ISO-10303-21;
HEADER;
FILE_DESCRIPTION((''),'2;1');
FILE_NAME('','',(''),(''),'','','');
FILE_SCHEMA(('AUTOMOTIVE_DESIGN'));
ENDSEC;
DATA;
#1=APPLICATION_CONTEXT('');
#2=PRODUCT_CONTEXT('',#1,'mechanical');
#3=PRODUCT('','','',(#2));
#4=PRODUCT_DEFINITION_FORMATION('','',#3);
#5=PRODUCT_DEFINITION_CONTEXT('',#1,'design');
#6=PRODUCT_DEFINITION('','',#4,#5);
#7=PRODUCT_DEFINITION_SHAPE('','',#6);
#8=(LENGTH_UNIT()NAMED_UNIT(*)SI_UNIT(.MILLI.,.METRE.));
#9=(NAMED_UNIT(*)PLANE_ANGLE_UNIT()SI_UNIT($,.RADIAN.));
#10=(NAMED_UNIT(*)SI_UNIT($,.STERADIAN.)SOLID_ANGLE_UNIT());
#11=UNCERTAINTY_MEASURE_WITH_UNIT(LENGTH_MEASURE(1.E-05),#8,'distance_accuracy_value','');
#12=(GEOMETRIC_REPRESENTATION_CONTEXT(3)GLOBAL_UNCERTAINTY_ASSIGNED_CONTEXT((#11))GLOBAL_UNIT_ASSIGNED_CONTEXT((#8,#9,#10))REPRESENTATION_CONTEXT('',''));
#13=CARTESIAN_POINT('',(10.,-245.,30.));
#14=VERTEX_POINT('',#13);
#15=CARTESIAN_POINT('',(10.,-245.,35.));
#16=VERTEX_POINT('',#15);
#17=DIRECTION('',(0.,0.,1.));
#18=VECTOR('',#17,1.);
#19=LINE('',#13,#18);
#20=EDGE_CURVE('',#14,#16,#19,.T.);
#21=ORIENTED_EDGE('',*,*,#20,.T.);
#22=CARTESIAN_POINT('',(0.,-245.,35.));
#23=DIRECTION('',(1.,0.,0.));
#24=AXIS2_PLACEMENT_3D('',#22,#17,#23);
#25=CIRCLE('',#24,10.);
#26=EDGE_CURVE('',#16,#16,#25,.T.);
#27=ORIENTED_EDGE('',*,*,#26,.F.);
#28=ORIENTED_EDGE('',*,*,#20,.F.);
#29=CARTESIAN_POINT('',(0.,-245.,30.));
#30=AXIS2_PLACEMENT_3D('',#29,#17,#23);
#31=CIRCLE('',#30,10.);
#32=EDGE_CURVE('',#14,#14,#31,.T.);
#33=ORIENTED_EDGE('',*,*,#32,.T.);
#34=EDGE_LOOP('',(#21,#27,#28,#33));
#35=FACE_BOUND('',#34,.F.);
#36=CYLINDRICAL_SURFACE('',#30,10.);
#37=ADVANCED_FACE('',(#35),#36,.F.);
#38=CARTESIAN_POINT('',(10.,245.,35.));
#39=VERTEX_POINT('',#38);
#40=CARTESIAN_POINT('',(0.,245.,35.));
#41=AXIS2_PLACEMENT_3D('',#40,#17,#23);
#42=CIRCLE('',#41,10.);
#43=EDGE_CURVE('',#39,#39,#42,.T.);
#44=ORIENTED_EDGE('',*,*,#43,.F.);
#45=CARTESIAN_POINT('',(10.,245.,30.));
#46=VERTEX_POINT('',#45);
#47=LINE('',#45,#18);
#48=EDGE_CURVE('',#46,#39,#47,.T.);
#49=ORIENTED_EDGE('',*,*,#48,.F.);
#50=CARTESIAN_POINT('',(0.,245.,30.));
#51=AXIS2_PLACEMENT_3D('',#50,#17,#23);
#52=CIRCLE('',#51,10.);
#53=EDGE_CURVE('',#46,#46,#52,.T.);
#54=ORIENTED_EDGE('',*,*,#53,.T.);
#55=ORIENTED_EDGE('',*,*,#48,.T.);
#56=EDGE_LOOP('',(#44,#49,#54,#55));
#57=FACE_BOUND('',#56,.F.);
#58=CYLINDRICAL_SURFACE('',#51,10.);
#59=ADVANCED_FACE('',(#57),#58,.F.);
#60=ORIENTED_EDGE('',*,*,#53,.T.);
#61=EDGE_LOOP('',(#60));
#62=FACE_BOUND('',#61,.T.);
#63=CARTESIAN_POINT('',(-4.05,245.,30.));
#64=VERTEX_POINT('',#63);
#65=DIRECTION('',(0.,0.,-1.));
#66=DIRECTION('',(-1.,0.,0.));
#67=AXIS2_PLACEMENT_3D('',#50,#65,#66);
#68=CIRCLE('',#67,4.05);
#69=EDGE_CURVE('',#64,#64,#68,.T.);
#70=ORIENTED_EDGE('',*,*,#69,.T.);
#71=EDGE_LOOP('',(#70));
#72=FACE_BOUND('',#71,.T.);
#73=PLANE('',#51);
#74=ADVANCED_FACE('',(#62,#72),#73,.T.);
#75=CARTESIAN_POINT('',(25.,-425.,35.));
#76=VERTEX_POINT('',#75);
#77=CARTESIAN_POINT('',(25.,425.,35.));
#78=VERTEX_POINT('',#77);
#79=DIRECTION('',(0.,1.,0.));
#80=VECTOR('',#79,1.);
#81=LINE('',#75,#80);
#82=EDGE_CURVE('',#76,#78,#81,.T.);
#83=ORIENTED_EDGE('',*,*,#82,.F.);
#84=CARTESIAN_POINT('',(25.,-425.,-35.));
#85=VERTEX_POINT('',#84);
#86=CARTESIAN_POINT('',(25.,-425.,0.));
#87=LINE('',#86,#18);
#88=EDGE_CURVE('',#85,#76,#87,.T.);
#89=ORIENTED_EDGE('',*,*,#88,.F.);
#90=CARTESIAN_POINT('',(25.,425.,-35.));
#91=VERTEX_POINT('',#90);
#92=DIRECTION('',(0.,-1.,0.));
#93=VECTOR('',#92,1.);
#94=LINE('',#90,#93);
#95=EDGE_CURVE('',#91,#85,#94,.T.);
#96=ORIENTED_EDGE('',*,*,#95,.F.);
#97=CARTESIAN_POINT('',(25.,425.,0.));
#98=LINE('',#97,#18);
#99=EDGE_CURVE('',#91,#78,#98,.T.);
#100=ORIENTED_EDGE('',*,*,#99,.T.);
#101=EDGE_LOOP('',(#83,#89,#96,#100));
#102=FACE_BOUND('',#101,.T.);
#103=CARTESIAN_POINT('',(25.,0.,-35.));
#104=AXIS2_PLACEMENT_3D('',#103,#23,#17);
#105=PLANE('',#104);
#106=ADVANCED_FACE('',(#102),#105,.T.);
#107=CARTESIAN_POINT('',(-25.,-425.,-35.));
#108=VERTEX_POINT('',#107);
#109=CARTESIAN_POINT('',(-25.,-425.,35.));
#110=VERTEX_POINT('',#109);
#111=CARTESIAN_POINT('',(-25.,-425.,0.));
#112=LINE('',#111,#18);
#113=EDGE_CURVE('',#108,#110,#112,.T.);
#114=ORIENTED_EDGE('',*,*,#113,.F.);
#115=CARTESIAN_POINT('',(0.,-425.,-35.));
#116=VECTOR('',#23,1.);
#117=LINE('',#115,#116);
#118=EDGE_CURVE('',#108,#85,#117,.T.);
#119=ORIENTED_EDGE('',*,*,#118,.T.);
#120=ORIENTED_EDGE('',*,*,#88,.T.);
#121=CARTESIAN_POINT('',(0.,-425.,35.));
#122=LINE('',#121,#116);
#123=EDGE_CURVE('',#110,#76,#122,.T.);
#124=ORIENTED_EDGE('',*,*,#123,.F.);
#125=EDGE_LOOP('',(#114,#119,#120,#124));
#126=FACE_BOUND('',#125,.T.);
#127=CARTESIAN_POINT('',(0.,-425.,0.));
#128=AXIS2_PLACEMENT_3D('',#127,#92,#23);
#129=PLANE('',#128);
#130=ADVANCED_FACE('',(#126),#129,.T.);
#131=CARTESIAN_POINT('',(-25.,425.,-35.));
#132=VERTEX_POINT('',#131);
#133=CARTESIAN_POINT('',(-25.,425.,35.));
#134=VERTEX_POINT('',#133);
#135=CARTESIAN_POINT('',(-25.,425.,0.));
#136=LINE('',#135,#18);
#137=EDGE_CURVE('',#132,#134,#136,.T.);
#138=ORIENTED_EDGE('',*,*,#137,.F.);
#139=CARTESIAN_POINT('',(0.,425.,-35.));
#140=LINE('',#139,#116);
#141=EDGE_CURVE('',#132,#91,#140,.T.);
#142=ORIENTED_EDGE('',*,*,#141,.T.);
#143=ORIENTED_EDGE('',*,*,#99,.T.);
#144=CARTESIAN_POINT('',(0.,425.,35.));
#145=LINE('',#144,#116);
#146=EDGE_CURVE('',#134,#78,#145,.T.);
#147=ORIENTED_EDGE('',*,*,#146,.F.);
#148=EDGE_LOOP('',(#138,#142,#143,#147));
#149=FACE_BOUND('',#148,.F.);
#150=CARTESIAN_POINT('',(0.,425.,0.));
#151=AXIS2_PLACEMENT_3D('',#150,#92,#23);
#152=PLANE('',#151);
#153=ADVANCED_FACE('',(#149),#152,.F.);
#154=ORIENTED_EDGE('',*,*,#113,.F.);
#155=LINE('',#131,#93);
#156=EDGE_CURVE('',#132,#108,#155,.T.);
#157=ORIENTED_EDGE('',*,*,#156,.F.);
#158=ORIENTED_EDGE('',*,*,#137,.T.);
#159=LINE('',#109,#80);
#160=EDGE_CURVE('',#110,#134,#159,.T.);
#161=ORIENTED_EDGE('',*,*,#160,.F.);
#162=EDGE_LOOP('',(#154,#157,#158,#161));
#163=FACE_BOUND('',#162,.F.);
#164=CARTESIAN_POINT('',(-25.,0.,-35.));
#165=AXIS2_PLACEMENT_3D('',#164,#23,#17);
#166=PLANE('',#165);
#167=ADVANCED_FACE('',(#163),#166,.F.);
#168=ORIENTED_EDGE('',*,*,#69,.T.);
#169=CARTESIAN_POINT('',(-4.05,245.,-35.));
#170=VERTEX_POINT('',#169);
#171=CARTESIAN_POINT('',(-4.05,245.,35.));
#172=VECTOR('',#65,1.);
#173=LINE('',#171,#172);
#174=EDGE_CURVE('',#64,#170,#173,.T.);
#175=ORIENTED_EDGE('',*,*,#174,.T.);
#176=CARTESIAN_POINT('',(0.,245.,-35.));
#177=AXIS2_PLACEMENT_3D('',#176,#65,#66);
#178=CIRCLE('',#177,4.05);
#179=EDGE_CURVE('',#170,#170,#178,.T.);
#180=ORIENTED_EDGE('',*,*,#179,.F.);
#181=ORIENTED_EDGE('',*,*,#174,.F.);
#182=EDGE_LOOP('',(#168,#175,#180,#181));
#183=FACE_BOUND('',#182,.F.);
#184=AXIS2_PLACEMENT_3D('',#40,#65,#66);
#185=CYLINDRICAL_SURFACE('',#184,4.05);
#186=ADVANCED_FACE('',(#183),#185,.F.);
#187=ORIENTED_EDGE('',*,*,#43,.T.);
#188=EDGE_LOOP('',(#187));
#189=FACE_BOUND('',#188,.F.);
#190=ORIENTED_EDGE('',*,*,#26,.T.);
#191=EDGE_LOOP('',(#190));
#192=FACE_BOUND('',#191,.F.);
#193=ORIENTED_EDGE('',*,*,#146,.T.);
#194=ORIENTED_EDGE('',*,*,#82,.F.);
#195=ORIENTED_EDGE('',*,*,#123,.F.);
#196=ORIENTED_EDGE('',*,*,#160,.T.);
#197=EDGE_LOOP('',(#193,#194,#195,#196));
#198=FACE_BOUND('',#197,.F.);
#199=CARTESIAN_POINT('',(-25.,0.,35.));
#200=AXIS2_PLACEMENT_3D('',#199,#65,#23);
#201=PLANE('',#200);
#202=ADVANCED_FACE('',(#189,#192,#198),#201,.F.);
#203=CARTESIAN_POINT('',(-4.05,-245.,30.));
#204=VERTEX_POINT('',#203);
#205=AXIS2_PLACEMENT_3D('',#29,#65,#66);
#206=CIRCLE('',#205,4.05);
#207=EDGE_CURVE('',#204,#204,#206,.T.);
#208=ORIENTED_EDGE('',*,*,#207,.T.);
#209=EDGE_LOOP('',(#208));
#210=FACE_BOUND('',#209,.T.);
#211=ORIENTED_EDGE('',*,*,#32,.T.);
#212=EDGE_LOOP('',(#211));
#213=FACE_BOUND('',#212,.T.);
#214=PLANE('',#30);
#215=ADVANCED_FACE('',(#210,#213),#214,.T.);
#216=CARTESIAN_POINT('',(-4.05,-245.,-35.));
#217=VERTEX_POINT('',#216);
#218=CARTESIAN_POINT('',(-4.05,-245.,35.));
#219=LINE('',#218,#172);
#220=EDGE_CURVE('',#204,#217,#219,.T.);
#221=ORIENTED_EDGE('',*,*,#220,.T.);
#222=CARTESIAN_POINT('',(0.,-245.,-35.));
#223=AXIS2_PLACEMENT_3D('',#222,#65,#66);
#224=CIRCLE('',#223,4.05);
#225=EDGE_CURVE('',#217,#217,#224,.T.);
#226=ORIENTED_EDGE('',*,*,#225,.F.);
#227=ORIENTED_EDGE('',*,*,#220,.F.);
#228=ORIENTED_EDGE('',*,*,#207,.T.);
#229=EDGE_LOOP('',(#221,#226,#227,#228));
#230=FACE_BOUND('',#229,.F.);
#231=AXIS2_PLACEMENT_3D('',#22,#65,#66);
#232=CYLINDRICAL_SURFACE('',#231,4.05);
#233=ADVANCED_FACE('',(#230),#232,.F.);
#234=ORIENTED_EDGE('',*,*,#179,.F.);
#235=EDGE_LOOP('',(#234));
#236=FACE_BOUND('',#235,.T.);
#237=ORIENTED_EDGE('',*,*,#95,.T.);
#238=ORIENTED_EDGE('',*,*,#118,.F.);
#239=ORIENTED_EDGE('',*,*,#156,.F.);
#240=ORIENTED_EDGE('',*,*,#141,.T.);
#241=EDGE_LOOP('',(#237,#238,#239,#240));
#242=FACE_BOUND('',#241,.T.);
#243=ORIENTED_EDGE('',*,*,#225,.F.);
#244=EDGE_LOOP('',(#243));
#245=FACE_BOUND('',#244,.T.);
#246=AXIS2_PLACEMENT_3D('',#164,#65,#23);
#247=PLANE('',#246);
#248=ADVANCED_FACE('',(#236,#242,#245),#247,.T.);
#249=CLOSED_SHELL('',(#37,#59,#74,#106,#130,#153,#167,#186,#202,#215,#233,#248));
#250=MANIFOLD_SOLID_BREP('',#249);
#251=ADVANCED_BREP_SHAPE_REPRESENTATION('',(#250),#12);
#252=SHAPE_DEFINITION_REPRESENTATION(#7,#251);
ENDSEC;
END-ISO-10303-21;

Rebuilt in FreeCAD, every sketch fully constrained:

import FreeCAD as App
import Part
import Sketcher

V = App.Vector

doc = App.newDocument("Part")
body = doc.addObject("PartDesign::Body", "Body")

# Sketch on XZ plane
sketch1 = body.newObject("Sketcher::SketchObject", "Sketch")
sketch1.AttachmentSupport = (doc.getObject("XZ_Plane"), [""])
sketch1.MapMode = "FlatFace"
sketch1.addGeometry([
    Part.LineSegment(V(-25, 35, 0), V(-25, -35, 0)),
    Part.LineSegment(V(-25, -35, 0), V(25, -35, 0)),
    Part.LineSegment(V(25, -35, 0), V(25, 35, 0)),
    Part.LineSegment(V(25, 35, 0), V(-25, 35, 0)),
], False)
sketch1.addConstraint([
    Sketcher.Constraint("Coincident", 0, 2, 1, 1),
    Sketcher.Constraint("Coincident", 1, 2, 2, 1),
    Sketcher.Constraint("Coincident", 2, 2, 3, 1),
    Sketcher.Constraint("Coincident", 3, 2, 0, 1),
    Sketcher.Constraint("Vertical", 0),
    Sketcher.Constraint("Horizontal", 1),
    Sketcher.Constraint("Vertical", 2),
    Sketcher.Constraint("Horizontal", 3),
    Sketcher.Constraint("Symmetric", 0, 2, 2, 2, -1, 1),
    Sketcher.Constraint("DistanceX", 1, 1, 1, 2, 50.0),
    Sketcher.Constraint("DistanceY", 0, 2, 0, 1, 70.0),
])
pad1 = body.newObject("PartDesign::Pad", "Pad")
pad1.Profile = sketch1
pad1.Type = "TwoLengths"
pad1.Length = 425
pad1.Length2 = 425

# Sketch on XY plane
sketch2 = body.newObject("Sketcher::SketchObject", "Sketch001")
sketch2.AttachmentSupport = (doc.getObject("XY_Plane"), [""])
sketch2.MapMode = "FlatFace"
sketch2.AttachmentOffset = App.Placement(V(0, 0, 35), App.Rotation())
sketch2.addGeometry([
    Part.Circle(V(0, -245, 0), V(0, 0, 1), 4),
    Part.Circle(V(0, 245, 0), V(0, 0, 1), 4),
], False)
sketch2.addConstraint([
    Sketcher.Constraint("Equal", 0, 1),
    Sketcher.Constraint("Symmetric", 0, 3, 1, 3, -1, 1),
    Sketcher.Constraint("PointOnObject", 0, 3, -2),
    Sketcher.Constraint("Diameter", 0, 8.1),
    Sketcher.Constraint("DistanceY", 0, 3, -1, 1, 245.0),
])
doc.recompute()
hole = body.newObject("PartDesign::Hole", "Hole")
hole.Profile = sketch2
hole.ThreadType = "None"
hole.Diameter = 8.1
hole.DepthType = "ThroughAll"
hole.HoleCutType = "Counterbore"
hole.HoleCutDiameter = 20
hole.HoleCutDepth = 5

doc.recompute()
